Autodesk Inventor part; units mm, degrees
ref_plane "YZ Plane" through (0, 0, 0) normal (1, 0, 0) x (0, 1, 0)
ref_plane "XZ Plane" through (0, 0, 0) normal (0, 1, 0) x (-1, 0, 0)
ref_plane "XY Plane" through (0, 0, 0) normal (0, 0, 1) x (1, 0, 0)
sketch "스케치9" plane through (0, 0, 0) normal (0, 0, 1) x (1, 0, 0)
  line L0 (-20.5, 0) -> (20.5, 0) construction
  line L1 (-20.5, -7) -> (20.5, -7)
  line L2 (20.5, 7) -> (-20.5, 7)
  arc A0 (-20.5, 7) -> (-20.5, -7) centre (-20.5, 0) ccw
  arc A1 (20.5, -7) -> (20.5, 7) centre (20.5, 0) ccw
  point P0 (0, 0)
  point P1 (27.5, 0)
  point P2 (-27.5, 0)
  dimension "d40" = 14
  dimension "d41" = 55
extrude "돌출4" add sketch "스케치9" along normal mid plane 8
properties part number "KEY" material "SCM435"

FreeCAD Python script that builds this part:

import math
import FreeCAD as App
import Part
import Sketcher

V = App.Vector

doc = App.newDocument("Part")
body = doc.addObject("PartDesign::Body", "Body")

sketch1 = doc.addObject("Sketcher::SketchObject", "Sketch")
body.addObject(sketch1)
sketch1.AttachmentSupport = (doc.XY_Plane, [""])
sketch1.MapMode = "FlatFace"
sketch1.addGeometry([
    Part.ArcOfCircle(Part.Circle(V(-20, 0, 0), V(0, 0, 1), 7), math.radians(90), math.radians(270)),
    Part.LineSegment(V(-20, -7, 0), V(20, -7, 0)),
    Part.ArcOfCircle(Part.Circle(V(20, 0, 0), V(0, 0, 1), 7), math.radians(-90), math.radians(90)),
    Part.LineSegment(V(20, 7, 0), V(-20, 7, 0)),
], False)
sketch1.addConstraint([
    Sketcher.Constraint("Tangent", 0, 2, 1, 1),
    Sketcher.Constraint("Tangent", 1, 2, 2, 1),
    Sketcher.Constraint("Tangent", 2, 2, 3, 1),
    Sketcher.Constraint("Tangent", 3, 2, 0, 1),
    Sketcher.Constraint("Horizontal", 1),
    Sketcher.Constraint("Horizontal", 3),
    Sketcher.Constraint("Symmetric", 0, 3, 2, 3, -1, 1),
    Sketcher.Constraint("Radius", 0, 7.0),
    Sketcher.Constraint("DistanceX", 1, 1, 1, 2, 41.0),
])
pad1 = doc.addObject("PartDesign::Pad", "Pad")
body.addObject(pad1)
pad1.Profile = sketch1
pad1.Length = 8
pad1.Midplane = True

doc.recompute()
